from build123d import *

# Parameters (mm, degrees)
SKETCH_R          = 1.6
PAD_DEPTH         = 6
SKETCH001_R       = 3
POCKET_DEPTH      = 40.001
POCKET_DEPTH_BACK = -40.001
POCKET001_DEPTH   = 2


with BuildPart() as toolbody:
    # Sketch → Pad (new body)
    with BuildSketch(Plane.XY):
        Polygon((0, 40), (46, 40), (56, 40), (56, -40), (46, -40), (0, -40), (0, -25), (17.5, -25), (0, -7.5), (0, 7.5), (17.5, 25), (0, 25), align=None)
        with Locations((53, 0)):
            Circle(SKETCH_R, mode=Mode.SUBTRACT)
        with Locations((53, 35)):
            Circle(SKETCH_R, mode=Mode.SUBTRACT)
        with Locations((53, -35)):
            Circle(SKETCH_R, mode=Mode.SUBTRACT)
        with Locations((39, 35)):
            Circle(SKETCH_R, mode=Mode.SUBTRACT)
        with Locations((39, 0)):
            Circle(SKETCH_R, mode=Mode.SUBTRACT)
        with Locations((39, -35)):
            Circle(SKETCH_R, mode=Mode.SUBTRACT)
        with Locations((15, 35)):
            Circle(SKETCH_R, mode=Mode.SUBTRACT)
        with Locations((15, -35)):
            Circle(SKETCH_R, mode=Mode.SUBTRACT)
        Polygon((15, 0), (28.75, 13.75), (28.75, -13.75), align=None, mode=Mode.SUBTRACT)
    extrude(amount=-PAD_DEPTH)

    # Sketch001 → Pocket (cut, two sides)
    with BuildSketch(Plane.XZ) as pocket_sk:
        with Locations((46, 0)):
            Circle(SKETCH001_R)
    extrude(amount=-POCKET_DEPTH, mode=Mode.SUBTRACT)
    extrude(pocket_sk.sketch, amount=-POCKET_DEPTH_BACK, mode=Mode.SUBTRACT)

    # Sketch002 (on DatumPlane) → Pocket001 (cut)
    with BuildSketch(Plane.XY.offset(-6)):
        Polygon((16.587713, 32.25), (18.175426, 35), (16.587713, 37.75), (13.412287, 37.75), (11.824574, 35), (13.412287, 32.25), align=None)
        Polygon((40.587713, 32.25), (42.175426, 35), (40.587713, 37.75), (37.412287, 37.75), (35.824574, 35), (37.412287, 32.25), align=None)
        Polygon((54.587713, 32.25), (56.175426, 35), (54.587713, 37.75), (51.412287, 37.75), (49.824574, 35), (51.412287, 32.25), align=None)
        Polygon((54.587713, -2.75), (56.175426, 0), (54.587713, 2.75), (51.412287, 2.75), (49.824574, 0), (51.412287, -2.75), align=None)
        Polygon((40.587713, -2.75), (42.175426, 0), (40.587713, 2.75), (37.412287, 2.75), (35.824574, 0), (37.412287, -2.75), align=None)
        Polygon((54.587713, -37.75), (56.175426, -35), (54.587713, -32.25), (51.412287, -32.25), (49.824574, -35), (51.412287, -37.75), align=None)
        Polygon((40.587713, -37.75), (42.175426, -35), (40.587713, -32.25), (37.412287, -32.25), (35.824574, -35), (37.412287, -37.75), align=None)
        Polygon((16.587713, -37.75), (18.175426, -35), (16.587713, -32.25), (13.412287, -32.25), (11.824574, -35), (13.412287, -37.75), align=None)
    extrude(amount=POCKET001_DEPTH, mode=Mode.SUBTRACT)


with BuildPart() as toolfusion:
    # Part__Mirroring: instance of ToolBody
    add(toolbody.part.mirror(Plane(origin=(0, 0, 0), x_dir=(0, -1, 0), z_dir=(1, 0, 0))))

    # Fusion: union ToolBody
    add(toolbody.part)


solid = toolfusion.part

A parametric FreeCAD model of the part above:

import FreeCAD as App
import Part
import Sketcher
from FreeCAD import Vector
Q = App.Units.Quantity

doc = App.newDocument("Part")
body = doc.addObject("PartDesign::Body", "Body")

# Sketch on XY plane
sketch1 = doc.addObject("Sketcher::SketchObject", "Sketch")
body.addObject(sketch1)
sketch1.AttachmentSupport = (doc.XY_Plane, [""])
sketch1.MapMode = "FlatFace"
sketch1.addGeometry(Part.LineSegment(Vector(56, 40, 0), Vector(0, 40, 0)), False)
sketch1.addGeometry(Part.LineSegment(Vector(0, 40, 0), Vector(0, 25, 0)), False)
sketch1.addGeometry(Part.LineSegment(Vector(0, 25, 0), Vector(17.5, 25, 0)), False)
sketch1.addGeometry(Part.LineSegment(Vector(17.5, 25, 0), Vector(0, 7.5, 0)), False)
sketch1.addGeometry(Part.LineSegment(Vector(0, 7.5, 0), Vector(0, -7.5, 0)), False)
sketch1.addGeometry(Part.LineSegment(Vector(0, -7.5, 0), Vector(17.5, -25, 0)), False)
sketch1.addGeometry(Part.LineSegment(Vector(17.5, -25, 0), Vector(0, -25, 0)), False)
sketch1.addGeometry(Part.LineSegment(Vector(0, -25, 0), Vector(0, -40, 0)), False)
sketch1.addGeometry(Part.LineSegment(Vector(0, -40, 0), Vector(56, -40, 0)), False)
sketch1.addGeometry(Part.LineSegment(Vector(56, -40, 0), Vector(56, 40, 0)), False)
sketch1.addGeometry(Part.Circle(Vector(53, -35, 0), Vector(0, 0, 1), 1.6), False)
sketch1.addGeometry(Part.Circle(Vector(39, -35, 0), Vector(0, 0, 1), 1.6), False)
sketch1.addGeometry(Part.Circle(Vector(15, -35, 0), Vector(0, 0, 1), 1.6), False)
sketch1.addGeometry(Part.Circle(Vector(53, 0, 0), Vector(0, 0, 1), 1.6), False)
sketch1.addGeometry(Part.Circle(Vector(39, 0, 0), Vector(0, 0, 1), 1.6), False)
sketch1.addGeometry(Part.Circle(Vector(53, 35, 0), Vector(0, 0, 1), 1.6), False)
sketch1.addGeometry(Part.Circle(Vector(39, 35, 0), Vector(0, 0, 1), 1.6), False)
sketch1.addGeometry(Part.LineSegment(Vector(15, 0, 0), Vector(28.8, 13.8, 0)), False)
sketch1.addGeometry(Part.LineSegment(Vector(28.8, 13.8, 0), Vector(28.8, -13.8, 0)), False)
sketch1.addGeometry(Part.LineSegment(Vector(28.8, -13.8, 0), Vector(15, 0, 0)), False)
sketch1.addGeometry(Part.Circle(Vector(15, 35, 0), Vector(0, 0, 1), 1.6), False)
sketch1.addConstraint(Sketcher.Constraint("Coincident", 0, 2, 1, 1))
sketch1.addConstraint(Sketcher.Constraint("Coincident", 1, 2, 2, 1))
sketch1.addConstraint(Sketcher.Constraint("Coincident", 2, 2, 3, 1))
sketch1.addConstraint(Sketcher.Constraint("Coincident", 3, 2, 4, 1))
sketch1.addConstraint(Sketcher.Constraint("Coincident", 4, 2, 5, 1))
sketch1.addConstraint(Sketcher.Constraint("Coincident", 5, 2, 6, 1))
sketch1.addConstraint(Sketcher.Constraint("Coincident", 6, 2, 7, 1))
sketch1.addConstraint(Sketcher.Constraint("Coincident", 7, 2, 8, 1))
sketch1.addConstraint(Sketcher.Constraint("Coincident", 8, 2, 9, 1))
sketch1.addConstraint(Sketcher.Constraint("Coincident", 9, 2, 0, 1))
sketch1.addConstraint(Sketcher.Constraint("Coincident", 17, 2, 18, 1))
sketch1.addConstraint(Sketcher.Constraint("Coincident", 18, 2, 19, 1))
sketch1.addConstraint(Sketcher.Constraint("Coincident", 19, 2, 17, 1))
sketch1.addConstraint(Sketcher.Constraint("Horizontal", 0))
sketch1.addConstraint(Sketcher.Constraint("Vertical", 1))
sketch1.addConstraint(Sketcher.Constraint("Horizontal", 2))
sketch1.addConstraint(Sketcher.Constraint("Vertical", 4))
sketch1.addConstraint(Sketcher.Constraint("Horizontal", 6))
sketch1.addConstraint(Sketcher.Constraint("Vertical", 7))
sketch1.addConstraint(Sketcher.Constraint("Horizontal", 8))
sketch1.addConstraint(Sketcher.Constraint("Vertical", 9))
sketch1.addConstraint(Sketcher.Constraint("Vertical", 18))
sketch1.addConstraint(Sketcher.Constraint("Equal", 10, 11))
sketch1.addConstraint(Sketcher.Constraint("Equal", 11, 12))
sketch1.addConstraint(Sketcher.Constraint("Equal", 12, 13))
sketch1.addConstraint(Sketcher.Constraint("Equal", 13, 14))
sketch1.addConstraint(Sketcher.Constraint("Equal", 14, 15))
sketch1.addConstraint(Sketcher.Constraint("Equal", 15, 16))
sketch1.addConstraint(Sketcher.Constraint("Equal", 16, 20))
sketch1.addConstraint(Sketcher.Constraint("Symmetric", 3, 2, 4, 2, -1, 1))
sketch1.addConstraint(Sketcher.Constraint("Symmetric", 1, 2, 6, 2, -1, 1))
sketch1.addConstraint(Sketcher.Constraint("Symmetric", 10, 3, 15, 3, -1))
sketch1.addConstraint(Sketcher.Constraint("Symmetric", 11, 3, 16, 3, -1))
sketch1.addConstraint(Sketcher.Constraint("Symmetric", 12, 3, 20, 3, -1))
sketch1.addConstraint(Sketcher.Constraint("Symmetric", 0, 2, 7, 2, -1))
sketch1.addConstraint(Sketcher.Constraint("PointOnObject", 13, 3, -1))
sketch1.addConstraint(Sketcher.Constraint("PointOnObject", 14, 3, -1))
sketch1.addConstraint(Sketcher.Constraint("PointOnObject", 19, 2, -1))
sketch1.addConstraint(Sketcher.Constraint("Perpendicular", 3, 5))
sketch1.addConstraint(Sketcher.Constraint("Perpendicular", 5, 17))
sketch1.addConstraint(Sketcher.Constraint("Perpendicular", 17, 19))
sketch1.addConstraint(Sketcher.Constraint("Horizontal", 10, 3, 11, 3))
sketch1.addConstraint(Sketcher.Constraint("Horizontal", 11, 3, 12, 3))
sketch1.addConstraint(Sketcher.Constraint("Vertical", 10, 3, 13, 3))
sketch1.addConstraint(Sketcher.Constraint("Vertical", 11, 3, 14, 3))
sketch1.addConstraint(Sketcher.Constraint("Vertical", 2, 2, 5, 2))
sketch1.addConstraint(Sketcher.Constraint("Vertical", 20, 3, 19, 2))
sketch1.addConstraint(Sketcher.Constraint("Equal", 1, 4))
sketch1.addConstraint(Sketcher.Constraint("Diameter", 10, Q("3.2 mm")))
sketch1.addConstraint(Sketcher.Constraint("DistanceX", 0, 2, 0, 1, Q("56 mm")))
sketch1.addConstraint(Sketcher.Constraint("DistanceY", 1, 2, 1, 1, Q("15 mm")))
sketch1.addConstraint(Sketcher.Constraint("DistanceY", 9, 1, 9, 2, Q("80 mm")))
sketch1.addConstraint(Sketcher.Constraint("DistanceY", 18, 2, 18, 1, Q("27.5 mm")))
sketch1.addConstraint(Sketcher.Constraint("DistanceX", -1, 1, 10, 3, Q("53 mm")))
sketch1.addConstraint(Sketcher.Constraint("DistanceY", 10, 3, -1, 1, Q("35 mm")))
sketch1.addConstraint(Sketcher.Constraint("DistanceX", -1, 1, 11, 3, Q("39 mm")))
sketch1.addConstraint(Sketcher.Constraint("DistanceX", -1, 1, 12, 3, Q("15 mm")))
pad1 = doc.addObject("PartDesign::Pad", "Pad")
body.addObject(pad1)
pad1.Profile = sketch1
pad1.Length = 6
pad1.Reversed = True

# Sketch on XZ plane
sketch2 = doc.addObject("Sketcher::SketchObject", "Sketch001")
body.addObject(sketch2)
sketch2.AttachmentSupport = (doc.XZ_Plane, [""])
sketch2.MapMode = "FlatFace"
sketch2.addGeometry(Part.Circle(Vector(46, 0, 0), Vector(0, 0, 1), 3), False)
sketch2.addConstraint(Sketcher.Constraint("PointOnObject", 0, 3, -1))
sketch2.addConstraint(Sketcher.Constraint("Diameter", 0, Q("6 mm")))
sketch2.addConstraint(Sketcher.Constraint("DistanceX", -1, 1, 0, 3, Q("46 mm")))
pocket1 = doc.addObject("PartDesign::Pocket", "Pocket")
body.addObject(pocket1)
pocket1.Profile = sketch2
pocket1.Type = "ThroughAll"
pocket1.Midplane = True

# Sketch on XY plane
sketch3 = doc.addObject("Sketcher::SketchObject", "Sketch002")
body.addObject(sketch3)
sketch3.AttachmentSupport = (doc.XY_Plane, [""])
sketch3.MapMode = "FlatFace"
sketch3.AttachmentOffset = App.Placement(Vector(0, 0, -6), App.Rotation())
sketch3.addGeometry(Part.LineSegment(Vector(16.6, 32.2, 0), Vector(18.2, 35, 0)), False)
sketch3.addGeometry(Part.LineSegment(Vector(18.2, 35, 0), Vector(16.6, 37.8, 0)), False)
sketch3.addGeometry(Part.LineSegment(Vector(16.6, 37.8, 0), Vector(13.4, 37.8, 0)), False)
sketch3.addGeometry(Part.LineSegment(Vector(13.4, 37.8, 0), Vector(11.8, 35, 0)), False)
sketch3.addGeometry(Part.LineSegment(Vector(11.8, 35, 0), Vector(13.4, 32.2, 0)), False)
sketch3.addGeometry(Part.LineSegment(Vector(13.4, 32.2, 0), Vector(16.6, 32.2, 0)), False)
sketch3.addGeometry(Part.LineSegment(Vector(40.6, 32.2, 0), Vector(42.2, 35, 0)), False)
sketch3.addGeometry(Part.LineSegment(Vector(42.2, 35, 0), Vector(40.6, 37.8, 0)), False)
sketch3.addGeometry(Part.LineSegment(Vector(40.6, 37.8, 0), Vector(37.4, 37.8, 0)), False)
sketch3.addGeometry(Part.LineSegment(Vector(37.4, 37.8, 0), Vector(35.8, 35, 0)), False)
sketch3.addGeometry(Part.LineSegment(Vector(35.8, 35, 0), Vector(37.4, 32.2, 0)), False)
sketch3.addGeometry(Part.LineSegment(Vector(37.4, 32.2, 0), Vector(40.6, 32.2, 0)), False)
sketch3.addGeometry(Part.LineSegment(Vector(54.6, 32.2, 0), Vector(56.2, 35, 0)), False)
sketch3.addGeometry(Part.LineSegment(Vector(56.2, 35, 0), Vector(54.6, 37.8, 0)), False)
sketch3.addGeometry(Part.LineSegment(Vector(54.6, 37.8, 0), Vector(51.4, 37.8, 0)), False)
sketch3.addGeometry(Part.LineSegment(Vector(51.4, 37.8, 0), Vector(49.8, 35, 0)), False)
sketch3.addGeometry(Part.LineSegment(Vector(49.8, 35, 0), Vector(51.4, 32.2, 0)), False)
sketch3.addGeometry(Part.LineSegment(Vector(51.4, 32.2, 0), Vector(54.6, 32.2, 0)), False)
sketch3.addGeometry(Part.LineSegment(Vector(54.6, -2.8, 0), Vector(56.2, 0, 0)), False)
sketch3.addGeometry(Part.LineSegment(Vector(56.2, 0, 0), Vector(54.6, 2.8, 0)), False)
sketch3.addGeometry(Part.LineSegment(Vector(54.6, 2.8, 0), Vector(51.4, 2.8, 0)), False)
sketch3.addGeometry(Part.LineSegment(Vector(51.4, 2.8, 0), Vector(49.8, 0, 0)), False)
sketch3.addGeometry(Part.LineSegment(Vector(49.8, 0, 0), Vector(51.4, -2.8, 0)), False)
sketch3.addGeometry(Part.LineSegment(Vector(51.4, -2.8, 0), Vector(54.6, -2.8, 0)), False)
sketch3.addGeometry(Part.LineSegment(Vector(40.6, -2.8, 0), Vector(42.2, 0, 0)), False)
sketch3.addGeometry(Part.LineSegment(Vector(42.2, 0, 0), Vector(40.6, 2.8, 0)), False)
sketch3.addGeometry(Part.LineSegment(Vector(40.6, 2.8, 0), Vector(37.4, 2.8, 0)), False)
sketch3.addGeometry(Part.LineSegment(Vector(37.4, 2.8, 0), Vector(35.8, 0, 0)), False)
sketch3.addGeometry(Part.LineSegment(Vector(35.8, 0, 0), Vector(37.4, -2.8, 0)), False)
sketch3.addGeometry(Part.LineSegment(Vector(37.4, -2.8, 0), Vector(40.6, -2.8, 0)), False)
sketch3.addGeometry(Part.LineSegment(Vector(54.6, -37.8, 0), Vector(56.2, -35, 0)), False)
sketch3.addGeometry(Part.LineSegment(Vector(56.2, -35, 0), Vector(54.6, -32.2, 0)), False)
sketch3.addGeometry(Part.LineSegment(Vector(54.6, -32.2, 0), Vector(51.4, -32.2, 0)), False)
sketch3.addGeometry(Part.LineSegment(Vector(51.4, -32.2, 0), Vector(49.8, -35, 0)), False)
sketch3.addGeometry(Part.LineSegment(Vector(49.8, -35, 0), Vector(51.4, -37.8, 0)), False)
sketch3.addGeometry(Part.LineSegment(Vector(51.4, -37.8, 0), Vector(54.6, -37.8, 0)), False)
sketch3.addGeometry(Part.LineSegment(Vector(40.6, -37.8, 0), Vector(42.2, -35, 0)), False)
sketch3.addGeometry(Part.LineSegment(Vector(42.2, -35, 0), Vector(40.6, -32.2, 0)), False)
sketch3.addGeometry(Part.LineSegment(Vector(40.6, -32.2, 0), Vector(37.4, -32.2, 0)), False)
sketch3.addGeometry(Part.LineSegment(Vector(37.4, -32.2, 0), Vector(35.8, -35, 0)), False)
sketch3.addGeometry(Part.LineSegment(Vector(35.8, -35, 0), Vector(37.4, -37.8, 0)), False)
sketch3.addGeometry(Part.LineSegment(Vector(37.4, -37.8, 0), Vector(40.6, -37.8, 0)), False)
sketch3.addGeometry(Part.LineSegment(Vector(16.6, -37.8, 0), Vector(18.2, -35, 0)), False)
sketch3.addGeometry(Part.LineSegment(Vector(18.2, -35, 0), Vector(16.6, -32.2, 0)), False)
sketch3.addGeometry(Part.LineSegment(Vector(16.6, -32.2, 0), Vector(13.4, -32.2, 0)), False)
sketch3.addGeometry(Part.LineSegment(Vector(13.4, -32.2, 0), Vector(11.8, -35, 0)), False)
sketch3.addGeometry(Part.LineSegment(Vector(11.8, -35, 0), Vector(13.4, -37.8, 0)), False)
sketch3.addGeometry(Part.LineSegment(Vector(13.4, -37.8, 0), Vector(16.6, -37.8, 0)), False)
sketch3.addConstraint(Sketcher.Constraint("Coincident", 0, 2, 1, 1))
sketch3.addConstraint(Sketcher.Constraint("Coincident", 1, 2, 2, 1))
sketch3.addConstraint(Sketcher.Constraint("Coincident", 2, 2, 3, 1))
sketch3.addConstraint(Sketcher.Constraint("Coincident", 3, 2, 4, 1))
sketch3.addConstraint(Sketcher.Constraint("Coincident", 4, 2, 5, 1))
sketch3.addConstraint(Sketcher.Constraint("Coincident", 5, 2, 0, 1))
sketch3.addConstraint(Sketcher.Constraint("Coincident", 6, 2, 7, 1))
sketch3.addConstraint(Sketcher.Constraint("Coincident", 7, 2, 8, 1))
sketch3.addConstraint(Sketcher.Constraint("Coincident", 8, 2, 9, 1))
sketch3.addConstraint(Sketcher.Constraint("Coincident", 9, 2, 10, 1))
sketch3.addConstraint(Sketcher.Constraint("Coincident", 10, 2, 11, 1))
sketch3.addConstraint(Sketcher.Constraint("Coincident", 11, 2, 6, 1))
sketch3.addConstraint(Sketcher.Constraint("Coincident", 12, 2, 13, 1))
sketch3.addConstraint(Sketcher.Constraint("Coincident", 13, 2, 14, 1))
sketch3.addConstraint(Sketcher.Constraint("Coincident", 14, 2, 15, 1))
sketch3.addConstraint(Sketcher.Constraint("Coincident", 15, 2, 16, 1))
sketch3.addConstraint(Sketcher.Constraint("Coincident", 16, 2, 17, 1))
sketch3.addConstraint(Sketcher.Constraint("Coincident", 17, 2, 12, 1))
sketch3.addConstraint(Sketcher.Constraint("Coincident", 18, 2, 19, 1))
sketch3.addConstraint(Sketcher.Constraint("Coincident", 19, 2, 20, 1))
sketch3.addConstraint(Sketcher.Constraint("Coincident", 20, 2, 21, 1))
sketch3.addConstraint(Sketcher.Constraint("Coincident", 21, 2, 22, 1))
sketch3.addConstraint(Sketcher.Constraint("Coincident", 22, 2, 23, 1))
sketch3.addConstraint(Sketcher.Constraint("Coincident", 23, 2, 18, 1))
sketch3.addConstraint(Sketcher.Constraint("Coincident", 24, 2, 25, 1))
sketch3.addConstraint(Sketcher.Constraint("Coincident", 25, 2, 26, 1))
sketch3.addConstraint(Sketcher.Constraint("Coincident", 26, 2, 27, 1))
sketch3.addConstraint(Sketcher.Constraint("Coincident", 27, 2, 28, 1))
sketch3.addConstraint(Sketcher.Constraint("Coincident", 28, 2, 29, 1))
sketch3.addConstraint(Sketcher.Constraint("Coincident", 29, 2, 24, 1))
sketch3.addConstraint(Sketcher.Constraint("Coincident", 30, 2, 31, 1))
sketch3.addConstraint(Sketcher.Constraint("Coincident", 31, 2, 32, 1))
sketch3.addConstraint(Sketcher.Constraint("Coincident", 32, 2, 33, 1))
sketch3.addConstraint(Sketcher.Constraint("Coincident", 33, 2, 34, 1))
sketch3.addConstraint(Sketcher.Constraint("Coincident", 34, 2, 35, 1))
sketch3.addConstraint(Sketcher.Constraint("Coincident", 35, 2, 30, 1))
sketch3.addConstraint(Sketcher.Constraint("Coincident", 36, 2, 37, 1))
sketch3.addConstraint(Sketcher.Constraint("Coincident", 37, 2, 38, 1))
sketch3.addConstraint(Sketcher.Constraint("Coincident", 38, 2, 39, 1))
sketch3.addConstraint(Sketcher.Constraint("Coincident", 39, 2, 40, 1))
sketch3.addConstraint(Sketcher.Constraint("Coincident", 40, 2, 41, 1))
sketch3.addConstraint(Sketcher.Constraint("Coincident", 41, 2, 36, 1))
sketch3.addConstraint(Sketcher.Constraint("Coincident", 42, 2, 43, 1))
sketch3.addConstraint(Sketcher.Constraint("Coincident", 43, 2, 44, 1))
sketch3.addConstraint(Sketcher.Constraint("Coincident", 44, 2, 45, 1))
sketch3.addConstraint(Sketcher.Constraint("Coincident", 45, 2, 46, 1))
sketch3.addConstraint(Sketcher.Constraint("Coincident", 46, 2, 47, 1))
sketch3.addConstraint(Sketcher.Constraint("Coincident", 47, 2, 42, 1))
sketch3.addConstraint(Sketcher.Constraint("Horizontal", 2))
sketch3.addConstraint(Sketcher.Constraint("Horizontal", 5))
sketch3.addConstraint(Sketcher.Constraint("Horizontal", 8))
sketch3.addConstraint(Sketcher.Constraint("Horizontal", 11))
sketch3.addConstraint(Sketcher.Constraint("Horizontal", 14))
sketch3.addConstraint(Sketcher.Constraint("Horizontal", 17))
sketch3.addConstraint(Sketcher.Constraint("Horizontal", 20))
sketch3.addConstraint(Sketcher.Constraint("Horizontal", 23))
sketch3.addConstraint(Sketcher.Constraint("Horizontal", 26))
sketch3.addConstraint(Sketcher.Constraint("Horizontal", 29))
sketch3.addConstraint(Sketcher.Constraint("Horizontal", 32))
sketch3.addConstraint(Sketcher.Constraint("Horizontal", 35))
sketch3.addConstraint(Sketcher.Constraint("Horizontal", 38))
sketch3.addConstraint(Sketcher.Constraint("Horizontal", 41))
sketch3.addConstraint(Sketcher.Constraint("Horizontal", 44))
sketch3.addConstraint(Sketcher.Constraint("Horizontal", 47))
sketch3.addConstraint(Sketcher.Constraint("Symmetric", 20, 2, 22, 2, -1))
sketch3.addConstraint(Sketcher.Constraint("Symmetric", 26, 2, 28, 2, -1))
sketch3.addConstraint(Sketcher.Constraint("Symmetric", 12, 2, 30, 2, -1))
sketch3.addConstraint(Sketcher.Constraint("Symmetric", 17, 2, 31, 2, -1))
sketch3.addConstraint(Sketcher.Constraint("Symmetric", 15, 2, 33, 2, -1))
sketch3.addConstraint(Sketcher.Constraint("Symmetric", 14, 2, 34, 2, -1))
sketch3.addConstraint(Sketcher.Constraint("Symmetric", 6, 2, 36, 2, -1))
sketch3.addConstraint(Sketcher.Constraint("Symmetric", 11, 2, 37, 2, -1))
sketch3.addConstraint(Sketcher.Constraint("Symmetric", 9, 2, 39, 2, -1))
sketch3.addConstraint(Sketcher.Constraint("Symmetric", 8, 2, 40, 2, -1))
sketch3.addConstraint(Sketcher.Constraint("Symmetric", 0, 2, 42, 2, -1))
sketch3.addConstraint(Sketcher.Constraint("Symmetric", 5, 2, 43, 2, -1))
sketch3.addConstraint(Sketcher.Constraint("Symmetric", 3, 2, 45, 2, -1))
sketch3.addConstraint(Sketcher.Constraint("Symmetric", 2, 2, 46, 2, -1))
sketch3.addConstraint(Sketcher.Constraint("PointOnObject", 18, 2, -1))
sketch3.addConstraint(Sketcher.Constraint("PointOnObject", 21, 2, -1))
sketch3.addConstraint(Sketcher.Constraint("PointOnObject", 24, 2, -1))
sketch3.addConstraint(Sketcher.Constraint("PointOnObject", 27, 2, -1))
sketch3.addConstraint(Sketcher.Constraint("Parallel", 0, 3))
sketch3.addConstraint(Sketcher.Constraint("Parallel", 1, 4))
sketch3.addConstraint(Sketcher.Constraint("Parallel", 3, 6))
sketch3.addConstraint(Sketcher.Constraint("Parallel", 4, 7))
sketch3.addConstraint(Sketcher.Constraint("Parallel", 6, 9))
sketch3.addConstraint(Sketcher.Constraint("Parallel", 7, 10))
sketch3.addConstraint(Sketcher.Constraint("Parallel", 9, 12))
sketch3.addConstraint(Sketcher.Constraint("Parallel", 10, 13))
sketch3.addConstraint(Sketcher.Constraint("Parallel", 12, 15))
sketch3.addConstraint(Sketcher.Constraint("Parallel", 13, 16))
sketch3.addConstraint(Sketcher.Constraint("Parallel", 15, 18))
sketch3.addConstraint(Sketcher.Constraint("Parallel", 16, 19))
sketch3.addConstraint(Sketcher.Constraint("Parallel", 18, 21))
sketch3.addConstraint(Sketcher.Constraint("Parallel", 19, 22))
sketch3.addConstraint(Sketcher.Constraint("Parallel", 21, 24))
sketch3.addConstraint(Sketcher.Constraint("Parallel", 22, 25))
sketch3.addConstraint(Sketcher.Constraint("Parallel", 24, 27))
sketch3.addConstraint(Sketcher.Constraint("Parallel", 27, 30))
sketch3.addConstraint(Sketcher.Constraint("Parallel", 30, 33))
sketch3.addConstraint(Sketcher.Constraint("Parallel", 33, 36))
sketch3.addConstraint(Sketcher.Constraint("Parallel", 36, 39))
sketch3.addConstraint(Sketcher.Constraint("Parallel", 39, 42))
sketch3.addConstraint(Sketcher.Constraint("Parallel", 42, 45))
sketch3.addConstraint(Sketcher.Constraint("Horizontal", 0, 2, 3, 2))
sketch3.addConstraint(Sketcher.Constraint("Horizontal", 3, 2, 6, 2))
sketch3.addConstraint(Sketcher.Constraint("Horizontal", 2, 2, 7, 2))
sketch3.addConstraint(Sketcher.Constraint("Horizontal", 6, 2, 9, 2))
sketch3.addConstraint(Sketcher.Constraint("Horizontal", 5, 2, 10, 2))
sketch3.addConstraint(Sketcher.Constraint("Horizontal", 9, 2, 12, 2))
sketch3.addConstraint(Sketcher.Constraint("Horizontal", 8, 2, 13, 2))
sketch3.addConstraint(Sketcher.Constraint("Horizontal", 12, 2, 15, 2))
sketch3.addConstraint(Sketcher.Constraint("Horizontal", 11, 2, 16, 2))
sketch3.addConstraint(Sketcher.Constraint("Horizontal", 20, 2, 25, 2))
sketch3.addConstraint(Sketcher.Constraint("Vertical", 2, 2, 4, 2))
sketch3.addConstraint(Sketcher.Constraint("Vertical", 12, 2, 18, 2))
sketch3.addConstraint(Sketcher.Constraint("Vertical", 17, 2, 19, 2))
sketch3.addConstraint(Sketcher.Constraint("Vertical", 16, 2, 20, 2))
sketch3.addConstraint(Sketcher.Constraint("Vertical", 6, 2, 24, 2))
sketch3.addConstraint(Sketcher.Constraint("Vertical", 10, 2, 26, 2))
sketch3.addConstraint(Sketcher.Constraint("Equal", 5, 8))
sketch3.addConstraint(Sketcher.Constraint("Equal", 11, 14))
sketch3.addConstraint(Sketcher.Constraint("Angle", 0, Q("60.000004 deg")))
sketch3.addConstraint(Sketcher.Constraint("DistanceY", -1, 1, 0, 2, Q("35 mm")))
sketch3.addConstraint(Sketcher.Constraint("DistanceX", 0, 2, 6, 2, Q("24 mm")))
sketch3.addConstraint(Sketcher.Constraint("DistanceX", 6, 2, 12, 2, Q("14 mm")))
sketch3.addConstraint(Sketcher.Constraint("DistanceY", 4, 2, 2, 2, Q("5.5 mm")))
sketch3.addConstraint(Sketcher.Constraint("DistanceX", 2, 2, 2, 1, Q("3.175426 mm")))
sketch3.addConstraint(Sketcher.Constraint("DistanceX", -1, 1, 0, 2, Q("18.175426 mm")))
pocket2 = doc.addObject("PartDesign::Pocket", "Pocket001")
body.addObject(pocket2)
pocket2.Profile = sketch3
pocket2.Length = 2
pocket2.Reversed = True
body2 = doc.addObject("PartDesign::Body", "Body001")
doc.recompute()

mirroring = doc.addObject("Part::Mirroring", "Mirroring")
mirroring.Source = body
mirroring.Base = Vector(0, 0, 0)
mirroring.Normal = Vector(1, 0, 0)
body2.BaseFeature = mirroring
doc.recompute()

boolean = doc.addObject("PartDesign::Boolean", "Boolean")
body2.addObject(boolean)
boolean.Type = "Fuse"
boolean.addObjects([body])
mirroring.Visibility = False

doc.recompute()
